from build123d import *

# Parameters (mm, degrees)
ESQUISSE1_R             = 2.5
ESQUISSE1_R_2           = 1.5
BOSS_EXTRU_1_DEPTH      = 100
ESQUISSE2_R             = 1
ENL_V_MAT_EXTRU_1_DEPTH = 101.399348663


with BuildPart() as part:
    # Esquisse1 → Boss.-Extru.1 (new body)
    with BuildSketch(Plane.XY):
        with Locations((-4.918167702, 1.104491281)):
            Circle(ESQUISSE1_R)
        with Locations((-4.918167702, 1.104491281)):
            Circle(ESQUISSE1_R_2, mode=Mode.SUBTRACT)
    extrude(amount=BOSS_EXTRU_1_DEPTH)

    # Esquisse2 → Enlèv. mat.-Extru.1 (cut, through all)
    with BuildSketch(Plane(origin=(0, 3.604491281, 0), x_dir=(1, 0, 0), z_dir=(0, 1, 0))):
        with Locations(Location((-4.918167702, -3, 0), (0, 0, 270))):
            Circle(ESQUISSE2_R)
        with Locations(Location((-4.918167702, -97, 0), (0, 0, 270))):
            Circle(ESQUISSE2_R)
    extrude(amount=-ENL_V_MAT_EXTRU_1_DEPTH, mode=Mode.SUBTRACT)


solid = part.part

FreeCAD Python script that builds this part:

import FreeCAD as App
import Part
import Sketcher

V = App.Vector

doc = App.newDocument("Part")
params = doc.addObject("Spreadsheet::Sheet", "Params")
for row, (alias, value) in enumerate([
    ("sketch1_diameter", "5 mm"),
    ("sketch1_diameter2", "3 mm"),
    ("pad1_length", "100 mm"),
    ("sketch2_diameter", "2 mm"),
], start=1):
    params.set(f"A{row}", alias)
    params.set(f"B{row}", "=" + value)
    params.setAlias(f"B{row}", alias)

body = doc.addObject("PartDesign::Body", "Body")

# Sketch on XY plane
sketch1 = body.newObject("Sketcher::SketchObject", "Sketch")
sketch1.AttachmentSupport = (doc.getObject("XY_Plane"), [""])
sketch1.MapMode = "FlatFace"
sketch1.addGeometry([
    Part.Circle(V(-4.9, 1.1, 0), V(0, 0, 1), 2.5),
    Part.Circle(V(-4.9, 1.1, 0), V(0, 0, 1), 1.5),
], False)
sketch1.addConstraint([
    Sketcher.Constraint("Coincident", 1, 3, 0, 3),
    Sketcher.Constraint("Diameter", 0, 5.0),
    Sketcher.Constraint("Diameter", 1, 3.0),
    Sketcher.Constraint("DistanceY", -1, 1, 0, 3, 1.104491),
    Sketcher.Constraint("DistanceX", 0, 3, -1, 1, 4.918168),
])
sketch1.setExpression("Constraints[1]", "Params.sketch1_diameter")
sketch1.setExpression("Constraints[2]", "Params.sketch1_diameter2")
pad1 = body.newObject("PartDesign::Pad", "Pad")
pad1.Profile = sketch1
pad1.setExpression("Length", "Params.pad1_length")

# Sketch on XZ plane
sketch2 = body.newObject("Sketcher::SketchObject", "Sketch001")
sketch2.AttachmentSupport = (doc.getObject("XZ_Plane"), [""])
sketch2.MapMode = "FlatFace"
sketch2.AttachmentOffset = App.Placement(V(0, 0, -3.604491), App.Rotation())
sketch2.addGeometry([
    Part.Circle(V(-4.9, 3, 0), V(0, 0, 1), 1),
    Part.Circle(V(-4.9, 97, 0), V(0, 0, 1), 1),
], False)
sketch2.addConstraint([
    Sketcher.Constraint("Equal", 0, 1),
    Sketcher.Constraint("Vertical", 0, 3, 1, 3),
    Sketcher.Constraint("Diameter", 0, 2.0),
    Sketcher.Constraint("DistanceY", -1, 1, 0, 3, 3.0),
    Sketcher.Constraint("DistanceY", -1, 1, 1, 3, 97.0),
    Sketcher.Constraint("DistanceX", 0, 3, -1, 1, 4.918168),
])
sketch2.setExpression("Constraints[2]", "Params.sketch2_diameter")
pocket1 = body.newObject("PartDesign::Pocket", "Pocket")
pocket1.Profile = sketch2
pocket1.Type = "ThroughAll"
pocket1.Reversed = True

doc.recompute()
